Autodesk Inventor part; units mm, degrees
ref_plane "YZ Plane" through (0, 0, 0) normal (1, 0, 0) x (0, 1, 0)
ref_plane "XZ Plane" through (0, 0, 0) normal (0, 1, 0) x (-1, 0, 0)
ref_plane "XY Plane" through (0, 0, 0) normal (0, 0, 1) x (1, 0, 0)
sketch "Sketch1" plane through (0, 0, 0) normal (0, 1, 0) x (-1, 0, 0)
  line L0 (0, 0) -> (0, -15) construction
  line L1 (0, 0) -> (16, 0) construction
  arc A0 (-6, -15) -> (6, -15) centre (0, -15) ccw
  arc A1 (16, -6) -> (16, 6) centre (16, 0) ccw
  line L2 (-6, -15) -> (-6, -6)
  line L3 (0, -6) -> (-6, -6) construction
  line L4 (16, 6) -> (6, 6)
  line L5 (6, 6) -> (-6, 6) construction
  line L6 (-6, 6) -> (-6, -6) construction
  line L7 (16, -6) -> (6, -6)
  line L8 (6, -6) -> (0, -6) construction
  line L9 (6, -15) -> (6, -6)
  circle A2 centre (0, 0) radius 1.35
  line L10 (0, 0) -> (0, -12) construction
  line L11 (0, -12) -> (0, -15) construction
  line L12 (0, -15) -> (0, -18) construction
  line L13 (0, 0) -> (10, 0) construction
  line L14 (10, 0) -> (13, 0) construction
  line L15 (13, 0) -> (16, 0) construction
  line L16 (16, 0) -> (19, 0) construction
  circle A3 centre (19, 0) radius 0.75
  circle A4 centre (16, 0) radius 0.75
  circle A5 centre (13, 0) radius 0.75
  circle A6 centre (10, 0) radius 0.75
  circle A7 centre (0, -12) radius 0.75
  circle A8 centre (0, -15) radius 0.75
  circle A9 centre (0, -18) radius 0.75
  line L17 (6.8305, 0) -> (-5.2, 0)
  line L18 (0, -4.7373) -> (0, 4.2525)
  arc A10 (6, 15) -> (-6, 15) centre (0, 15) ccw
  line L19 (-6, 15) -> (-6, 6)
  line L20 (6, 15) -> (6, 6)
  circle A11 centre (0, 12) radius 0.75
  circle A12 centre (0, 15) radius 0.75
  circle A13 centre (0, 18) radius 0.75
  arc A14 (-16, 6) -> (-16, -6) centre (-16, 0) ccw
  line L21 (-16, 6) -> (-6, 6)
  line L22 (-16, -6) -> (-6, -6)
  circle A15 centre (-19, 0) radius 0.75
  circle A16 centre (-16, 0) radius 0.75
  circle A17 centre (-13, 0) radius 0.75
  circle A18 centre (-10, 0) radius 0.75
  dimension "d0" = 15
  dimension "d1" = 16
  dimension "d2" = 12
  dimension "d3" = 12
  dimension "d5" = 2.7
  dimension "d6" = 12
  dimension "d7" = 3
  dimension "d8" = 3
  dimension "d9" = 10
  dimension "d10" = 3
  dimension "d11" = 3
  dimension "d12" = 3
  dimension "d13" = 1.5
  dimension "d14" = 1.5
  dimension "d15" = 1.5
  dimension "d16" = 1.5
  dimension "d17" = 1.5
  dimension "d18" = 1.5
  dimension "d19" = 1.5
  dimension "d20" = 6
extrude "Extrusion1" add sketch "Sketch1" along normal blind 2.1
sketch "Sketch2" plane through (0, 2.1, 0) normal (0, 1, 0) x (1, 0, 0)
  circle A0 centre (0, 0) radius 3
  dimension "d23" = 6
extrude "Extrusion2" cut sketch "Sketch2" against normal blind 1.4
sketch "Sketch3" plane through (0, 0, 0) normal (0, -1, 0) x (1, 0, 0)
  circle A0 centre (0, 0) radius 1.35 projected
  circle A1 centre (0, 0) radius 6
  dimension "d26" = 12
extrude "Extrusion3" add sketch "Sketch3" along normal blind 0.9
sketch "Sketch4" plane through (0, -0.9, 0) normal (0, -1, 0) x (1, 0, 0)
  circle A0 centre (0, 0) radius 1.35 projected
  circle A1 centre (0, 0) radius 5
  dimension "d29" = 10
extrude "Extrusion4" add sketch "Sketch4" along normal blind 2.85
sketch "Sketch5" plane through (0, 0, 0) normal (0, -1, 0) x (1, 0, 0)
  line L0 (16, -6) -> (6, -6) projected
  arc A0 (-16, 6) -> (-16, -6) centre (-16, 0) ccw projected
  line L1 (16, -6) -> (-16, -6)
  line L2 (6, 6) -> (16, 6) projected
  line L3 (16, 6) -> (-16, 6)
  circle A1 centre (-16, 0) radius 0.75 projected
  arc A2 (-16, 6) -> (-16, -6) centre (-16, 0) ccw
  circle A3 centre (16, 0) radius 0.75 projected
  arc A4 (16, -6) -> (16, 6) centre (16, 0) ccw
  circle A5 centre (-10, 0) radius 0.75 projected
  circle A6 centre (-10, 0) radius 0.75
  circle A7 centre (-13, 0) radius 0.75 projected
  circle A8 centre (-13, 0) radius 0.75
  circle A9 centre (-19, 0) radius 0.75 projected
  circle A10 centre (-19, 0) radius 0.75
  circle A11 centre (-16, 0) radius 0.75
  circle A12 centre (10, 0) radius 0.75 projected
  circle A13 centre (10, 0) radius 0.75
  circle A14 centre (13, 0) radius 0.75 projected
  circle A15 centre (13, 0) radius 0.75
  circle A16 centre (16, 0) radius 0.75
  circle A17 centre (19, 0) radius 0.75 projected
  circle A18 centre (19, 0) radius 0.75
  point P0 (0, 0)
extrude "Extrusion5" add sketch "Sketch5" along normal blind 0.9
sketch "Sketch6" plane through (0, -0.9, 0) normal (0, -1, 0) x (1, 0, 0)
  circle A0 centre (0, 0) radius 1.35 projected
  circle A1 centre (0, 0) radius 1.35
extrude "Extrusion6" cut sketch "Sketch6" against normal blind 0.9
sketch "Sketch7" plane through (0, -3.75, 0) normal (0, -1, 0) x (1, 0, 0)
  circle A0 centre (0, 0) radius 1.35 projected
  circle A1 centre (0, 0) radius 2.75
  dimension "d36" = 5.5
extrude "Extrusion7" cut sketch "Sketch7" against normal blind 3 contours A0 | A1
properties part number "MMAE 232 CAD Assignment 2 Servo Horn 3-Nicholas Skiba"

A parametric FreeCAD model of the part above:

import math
import FreeCAD as App
import Part
import Sketcher
from FreeCAD import Vector

doc = App.newDocument("Part")
body = doc.addObject("PartDesign::Body", "Body")

# Sketch on XZ plane
sketch1 = doc.addObject("Sketcher::SketchObject", "Sketch")
body.addObject(sketch1)
sketch1.AttachmentSupport = (doc.XZ_Plane, [""])
sketch1.MapMode = "FlatFace"
sketch1.addGeometry(Part.LineSegment(Vector(6, -6, 0), Vector(6, -15, 0)), False)
sketch1.addGeometry(Part.ArcOfCircle(Part.Circle(Vector(0, -15, 0), Vector(0, 0, 1), 6), math.radians(180), math.radians(360)), False)
sketch1.addGeometry(Part.LineSegment(Vector(-6, -15, 0), Vector(-6, -6, 0)), False)
sketch1.addGeometry(Part.LineSegment(Vector(-6, -6, 0), Vector(-16, -6, 0)), False)
sketch1.addGeometry(Part.ArcOfCircle(Part.Circle(Vector(-16, 0, 0), Vector(0, 0, 1), 6), math.radians(90), math.radians(270)), False)
sketch1.addGeometry(Part.LineSegment(Vector(-16, 6, 0), Vector(-6, 6, 0)), False)
sketch1.addGeometry(Part.LineSegment(Vector(-6, 6, 0), Vector(-6, 15, 0)), False)
sketch1.addGeometry(Part.ArcOfCircle(Part.Circle(Vector(0, 15, 0), Vector(0, 0, 1), 6), math.radians(0), math.radians(180)), False)
sketch1.addGeometry(Part.LineSegment(Vector(6, 15, 0), Vector(6, 6, 0)), False)
sketch1.addGeometry(Part.LineSegment(Vector(6, 6, 0), Vector(16, 6, 0)), False)
sketch1.addGeometry(Part.ArcOfCircle(Part.Circle(Vector(16, 0, 0), Vector(0, 0, 1), 6), math.radians(-90), math.radians(90)), False)
sketch1.addGeometry(Part.LineSegment(Vector(16, -6, 0), Vector(6, -6, 0)), False)
sketch1.addGeometry(Part.Circle(Vector(0, -18, 0), Vector(0, 0, 1), 0.8), False)
sketch1.addGeometry(Part.Circle(Vector(0, -15, 0), Vector(0, 0, 1), 0.8), False)
sketch1.addGeometry(Part.Circle(Vector(0, -12, 0), Vector(0, 0, 1), 0.8), False)
sketch1.addGeometry(Part.Circle(Vector(19, 0, 0), Vector(0, 0, 1), 0.8), False)
sketch1.addGeometry(Part.Circle(Vector(16, 0, 0), Vector(0, 0, 1), 0.8), False)
sketch1.addGeometry(Part.Circle(Vector(13, 0, 0), Vector(0, 0, 1), 0.8), False)
sketch1.addGeometry(Part.Circle(Vector(10, 0, 0), Vector(0, 0, 1), 0.8), False)
sketch1.addGeometry(Part.Circle(Vector(0, 0, 0), Vector(0, 0, 1), 1.4), False)
sketch1.addGeometry(Part.Circle(Vector(-10, 0, 0), Vector(0, 0, 1), 0.8), False)
sketch1.addGeometry(Part.Circle(Vector(-13, 0, 0), Vector(0, 0, 1), 0.8), False)
sketch1.addGeometry(Part.Circle(Vector(-16, 0, 0), Vector(0, 0, 1), 0.8), False)
sketch1.addGeometry(Part.Circle(Vector(-19, 0, 0), Vector(0, 0, 1), 0.8), False)
sketch1.addGeometry(Part.Circle(Vector(0, 12, 0), Vector(0, 0, 1), 0.8), False)
sketch1.addGeometry(Part.Circle(Vector(0, 15, 0), Vector(0, 0, 1), 0.8), False)
sketch1.addGeometry(Part.Circle(Vector(0, 18, 0), Vector(0, 0, 1), 0.8), False)
sketch1.addConstraint(Sketcher.Constraint("Tangent", 0, 2, 1, 2))
sketch1.addConstraint(Sketcher.Constraint("Tangent", 1, 1, 2, 1))
sketch1.addConstraint(Sketcher.Constraint("Coincident", 2, 2, 3, 1))
sketch1.addConstraint(Sketcher.Constraint("Tangent", 3, 2, 4, 2))
sketch1.addConstraint(Sketcher.Constraint("Tangent", 4, 1, 5, 1))
sketch1.addConstraint(Sketcher.Constraint("Coincident", 5, 2, 6, 1))
sketch1.addConstraint(Sketcher.Constraint("Tangent", 6, 2, 7, 2))
sketch1.addConstraint(Sketcher.Constraint("Tangent", 7, 1, 8, 1))
sketch1.addConstraint(Sketcher.Constraint("Coincident", 8, 2, 9, 1))
sketch1.addConstraint(Sketcher.Constraint("Tangent", 9, 2, 10, 2))
sketch1.addConstraint(Sketcher.Constraint("Tangent", 10, 1, 11, 1))
sketch1.addConstraint(Sketcher.Constraint("Coincident", 11, 2, 0, 1))
sketch1.addConstraint(Sketcher.Constraint("Vertical", 0))
sketch1.addConstraint(Sketcher.Constraint("Vertical", 2))
sketch1.addConstraint(Sketcher.Constraint("Horizontal", 3))
sketch1.addConstraint(Sketcher.Constraint("Horizontal", 5))
sketch1.addConstraint(Sketcher.Constraint("Vertical", 6))
sketch1.addConstraint(Sketcher.Constraint("Vertical", 8))
sketch1.addConstraint(Sketcher.Constraint("Horizontal", 9))
sketch1.addConstraint(Sketcher.Constraint("Horizontal", 11))
sketch1.addConstraint(Sketcher.Constraint("Coincident", 19, 3, -1, 1))
sketch1.addConstraint(Sketcher.Constraint("Coincident", 13, 3, 1, 3))
sketch1.addConstraint(Sketcher.Constraint("Coincident", 16, 3, 10, 3))
sketch1.addConstraint(Sketcher.Constraint("Coincident", 22, 3, 4, 3))
sketch1.addConstraint(Sketcher.Constraint("Coincident", 25, 3, 7, 3))
sketch1.addConstraint(Sketcher.Constraint("Equal", 1, 4))
sketch1.addConstraint(Sketcher.Constraint("Equal", 4, 7))
sketch1.addConstraint(Sketcher.Constraint("Equal", 7, 10))
sketch1.addConstraint(Sketcher.Constraint("Equal", 12, 13))
sketch1.addConstraint(Sketcher.Constraint("Equal", 13, 14))
sketch1.addConstraint(Sketcher.Constraint("Equal", 14, 15))
sketch1.addConstraint(Sketcher.Constraint("Equal", 15, 16))
sketch1.addConstraint(Sketcher.Constraint("Equal", 16, 17))
sketch1.addConstraint(Sketcher.Constraint("Equal", 17, 18))
sketch1.addConstraint(Sketcher.Constraint("Equal", 18, 20))
sketch1.addConstraint(Sketcher.Constraint("Equal", 20, 21))
sketch1.addConstraint(Sketcher.Constraint("Equal", 21, 22))
sketch1.addConstraint(Sketcher.Constraint("Equal", 22, 23))
sketch1.addConstraint(Sketcher.Constraint("Equal", 23, 24))
sketch1.addConstraint(Sketcher.Constraint("Equal", 24, 25))
sketch1.addConstraint(Sketcher.Constraint("Equal", 25, 26))
sketch1.addConstraint(Sketcher.Constraint("Symmetric", 1, 3, 7, 3, -1, 1))
sketch1.addConstraint(Sketcher.Constraint("Symmetric", 4, 3, 10, 3, -1, 1))
sketch1.addConstraint(Sketcher.Constraint("Symmetric", 18, 3, 20, 3, -1, 1))
sketch1.addConstraint(Sketcher.Constraint("Symmetric", 17, 3, 21, 3, -1, 1))
sketch1.addConstraint(Sketcher.Constraint("Symmetric", 15, 3, 23, 3, -1, 1))
sketch1.addConstraint(Sketcher.Constraint("Symmetric", 14, 3, 24, 3, -1, 1))
sketch1.addConstraint(Sketcher.Constraint("Symmetric", 12, 3, 26, 3, -1, 1))
sketch1.addConstraint(Sketcher.Constraint("Symmetric", 5, 2, 8, 2, -2))
sketch1.addConstraint(Sketcher.Constraint("PointOnObject", 12, 3, -2))
sketch1.addConstraint(Sketcher.Constraint("PointOnObject", 14, 3, -2))
sketch1.addConstraint(Sketcher.Constraint("PointOnObject", 15, 3, -1))
sketch1.addConstraint(Sketcher.Constraint("PointOnObject", 17, 3, -1))
sketch1.addConstraint(Sketcher.Constraint("PointOnObject", 18, 3, -1))
sketch1.addConstraint(Sketcher.Constraint("Radius", 1, 6.0))
sketch1.addConstraint(Sketcher.Constraint("Diameter", 12, 1.5))
sketch1.addConstraint(Sketcher.Constraint("Diameter", 19, 2.7))
sketch1.addConstraint(Sketcher.Constraint("DistanceX", 3, 2, 3, 1, 10.0))
sketch1.addConstraint(Sketcher.Constraint("DistanceY", 1, 3, -1, 1, 15.0))
sketch1.addConstraint(Sketcher.Constraint("DistanceY", 14, 3, -1, 1, 12.0))
sketch1.addConstraint(Sketcher.Constraint("DistanceX", -1, 1, 18, 3, 10.0))
sketch1.addConstraint(Sketcher.Constraint("DistanceY", 12, 3, 1, 3, 3.0))
sketch1.addConstraint(Sketcher.Constraint("DistanceX", 10, 3, 15, 3, 3.0))
sketch1.addConstraint(Sketcher.Constraint("DistanceX", 17, 3, 10, 3, 3.0))
pad1 = doc.addObject("PartDesign::Pad", "Pad")
body.addObject(pad1)
pad1.Profile = sketch1
pad1.Length = 2.1
pad1.Reversed = True

# Sketch on XZ plane
sketch2 = doc.addObject("Sketcher::SketchObject", "Sketch001")
body.addObject(sketch2)
sketch2.AttachmentSupport = (doc.XZ_Plane, [""])
sketch2.MapMode = "FlatFace"
sketch2.AttachmentOffset = App.Placement(Vector(0, 0, -2.1), App.Rotation())
sketch2.addGeometry(Part.Circle(Vector(0, 0, 0), Vector(0, 0, 1), 3), False)
sketch2.addConstraint(Sketcher.Constraint("Coincident", 0, 3, -1, 1))
sketch2.addConstraint(Sketcher.Constraint("Diameter", 0, 6.0))
pocket1 = doc.addObject("PartDesign::Pocket", "Pocket")
body.addObject(pocket1)
pocket1.Profile = sketch2
pocket1.Length = 1.4
pocket1.Reversed = True

# Sketch on XZ plane
sketch3 = doc.addObject("Sketcher::SketchObject", "Sketch002")
body.addObject(sketch3)
sketch3.AttachmentSupport = (doc.XZ_Plane, [""])
sketch3.MapMode = "FlatFace"
sketch3.addGeometry(Part.Circle(Vector(0, 0, 0), Vector(0, 0, 1), 6), False)
sketch3.addGeometry(Part.Circle(Vector(0, 0, 0), Vector(0, 0, 1), 1.4), False)
sketch3.addConstraint(Sketcher.Constraint("Coincident", 0, 3, -1, 1))
sketch3.addConstraint(Sketcher.Constraint("Coincident", 1, 3, -1, 1))
sketch3.addConstraint(Sketcher.Constraint("Diameter", 0, 12.0))
sketch3.addConstraint(Sketcher.Constraint("Diameter", 1, 2.7))
pad2 = doc.addObject("PartDesign::Pad", "Pad001")
body.addObject(pad2)
pad2.Profile = sketch3
pad2.Length = 0.9

# Sketch on XZ plane
sketch4 = doc.addObject("Sketcher::SketchObject", "Sketch003")
body.addObject(sketch4)
sketch4.AttachmentSupport = (doc.XZ_Plane, [""])
sketch4.MapMode = "FlatFace"
sketch4.AttachmentOffset = App.Placement(Vector(0, 0, 0.9), App.Rotation())
sketch4.addGeometry(Part.Circle(Vector(0, 0, 0), Vector(0, 0, 1), 5), False)
sketch4.addGeometry(Part.Circle(Vector(0, 0, 0), Vector(0, 0, 1), 1.4), False)
sketch4.addConstraint(Sketcher.Constraint("Coincident", 0, 3, -1, 1))
sketch4.addConstraint(Sketcher.Constraint("Coincident", 1, 3, -1, 1))
sketch4.addConstraint(Sketcher.Constraint("Diameter", 0, 10.0))
sketch4.addConstraint(Sketcher.Constraint("Diameter", 1, 2.7))
pad3 = doc.addObject("PartDesign::Pad", "Pad002")
body.addObject(pad3)
pad3.Profile = sketch4
pad3.Length = 2.85

# Sketch on XZ plane
sketch5 = doc.addObject("Sketcher::SketchObject", "Sketch004")
body.addObject(sketch5)
sketch5.AttachmentSupport = (doc.XZ_Plane, [""])
sketch5.MapMode = "FlatFace"
sketch5.addGeometry(Part.LineSegment(Vector(-16, -6, 0), Vector(16, -6, 0)), False)
sketch5.addGeometry(Part.ArcOfCircle(Part.Circle(Vector(16, 0, 0), Vector(0, 0, 1), 6), math.radians(-90), math.radians(90)), False)
sketch5.addGeometry(Part.LineSegment(Vector(16, 6, 0), Vector(-16, 6, 0)), False)
sketch5.addGeometry(Part.ArcOfCircle(Part.Circle(Vector(-16, 0, 0), Vector(0, 0, 1), 6), math.radians(90), math.radians(270)), False)
sketch5.addGeometry(Part.Circle(Vector(-19, 0, 0), Vector(0, 0, 1), 0.8), False)
sketch5.addGeometry(Part.Circle(Vector(-16, 0, 0), Vector(0, 0, 1), 0.8), False)
sketch5.addGeometry(Part.Circle(Vector(-13, 0, 0), Vector(0, 0, 1), 0.8), False)
sketch5.addGeometry(Part.Circle(Vector(-10, 0, 0), Vector(0, 0, 1), 0.8), False)
sketch5.addGeometry(Part.Circle(Vector(10, 0, 0), Vector(0, 0, 1), 0.8), False)
sketch5.addGeometry(Part.Circle(Vector(13, 0, 0), Vector(0, 0, 1), 0.8), False)
sketch5.addGeometry(Part.Circle(Vector(16, 0, 0), Vector(0, 0, 1), 0.8), False)
sketch5.addGeometry(Part.Circle(Vector(19, 0, 0), Vector(0, 0, 1), 0.8), False)
sketch5.addConstraint(Sketcher.Constraint("Tangent", 0, 2, 1, 1))
sketch5.addConstraint(Sketcher.Constraint("Tangent", 1, 2, 2, 1))
sketch5.addConstraint(Sketcher.Constraint("Tangent", 2, 2, 3, 1))
sketch5.addConstraint(Sketcher.Constraint("Tangent", 3, 2, 0, 1))
sketch5.addConstraint(Sketcher.Constraint("Horizontal", 0))
sketch5.addConstraint(Sketcher.Constraint("Horizontal", 2))
sketch5.addConstraint(Sketcher.Constraint("Coincident", 5, 3, 3, 3))
sketch5.addConstraint(Sketcher.Constraint("Coincident", 10, 3, 1, 3))
sketch5.addConstraint(Sketcher.Constraint("Equal", 4, 5))
sketch5.addConstraint(Sketcher.Constraint("Equal", 5, 6))
sketch5.addConstraint(Sketcher.Constraint("Equal", 6, 7))
sketch5.addConstraint(Sketcher.Constraint("Equal", 7, 8))
sketch5.addConstraint(Sketcher.Constraint("Equal", 8, 9))
sketch5.addConstraint(Sketcher.Constraint("Equal", 9, 10))
sketch5.addConstraint(Sketcher.Constraint("Equal", 10, 11))
sketch5.addConstraint(Sketcher.Constraint("Symmetric", 1, 3, 3, 3, -1, 1))
sketch5.addConstraint(Sketcher.Constraint("Symmetric", 7, 3, 8, 3, -1, 1))
sketch5.addConstraint(Sketcher.Constraint("Symmetric", 6, 3, 9, 3, -1, 1))
sketch5.addConstraint(Sketcher.Constraint("Symmetric", 4, 3, 11, 3, -1, 1))
sketch5.addConstraint(Sketcher.Constraint("PointOnObject", 4, 3, -1))
sketch5.addConstraint(Sketcher.Constraint("PointOnObject", 6, 3, -1))
sketch5.addConstraint(Sketcher.Constraint("PointOnObject", 7, 3, -1))
sketch5.addConstraint(Sketcher.Constraint("Radius", 1, 6.0))
sketch5.addConstraint(Sketcher.Constraint("Diameter", 4, 1.5))
sketch5.addConstraint(Sketcher.Constraint("DistanceX", 0, 1, 0, 2, 32.0))
sketch5.addConstraint(Sketcher.Constraint("DistanceX", 4, 3, -1, 1, 19.0))
sketch5.addConstraint(Sketcher.Constraint("DistanceX", 6, 3, -1, 1, 13.0))
sketch5.addConstraint(Sketcher.Constraint("DistanceX", 7, 3, -1, 1, 10.0))
pad4 = doc.addObject("PartDesign::Pad", "Pad003")
body.addObject(pad4)
pad4.Profile = sketch5
pad4.Length = 0.9

# Sketch on XZ plane
sketch6 = doc.addObject("Sketcher::SketchObject", "Sketch005")
body.addObject(sketch6)
sketch6.AttachmentSupport = (doc.XZ_Plane, [""])
sketch6.MapMode = "FlatFace"
sketch6.AttachmentOffset = App.Placement(Vector(0, 0, 0.9), App.Rotation())
sketch6.addGeometry(Part.Circle(Vector(0, 0, 0), Vector(0, 0, 1), 1.4), False)
sketch6.addConstraint(Sketcher.Constraint("Coincident", 0, 3, -1, 1))
sketch6.addConstraint(Sketcher.Constraint("Diameter", 0, 2.7))
pocket2 = doc.addObject("PartDesign::Pocket", "Pocket001")
body.addObject(pocket2)
pocket2.Profile = sketch6
pocket2.Length = 0.9

# Sketch on XZ plane
sketch7 = doc.addObject("Sketcher::SketchObject", "Sketch006")
body.addObject(sketch7)
sketch7.AttachmentSupport = (doc.XZ_Plane, [""])
sketch7.MapMode = "FlatFace"
sketch7.AttachmentOffset = App.Placement(Vector(0, 0, 3.75), App.Rotation())
sketch7.addGeometry(Part.Circle(Vector(0, 0, 0), Vector(0, 0, 1), 2.8), False)
sketch7.addConstraint(Sketcher.Constraint("Coincident", 0, 3, -1, 1))
sketch7.addConstraint(Sketcher.Constraint("Diameter", 0, 5.5))
pocket3 = doc.addObject("PartDesign::Pocket", "Pocket002")
body.addObject(pocket3)
pocket3.Profile = sketch7
pocket3.Length = 3

doc.recompute()
